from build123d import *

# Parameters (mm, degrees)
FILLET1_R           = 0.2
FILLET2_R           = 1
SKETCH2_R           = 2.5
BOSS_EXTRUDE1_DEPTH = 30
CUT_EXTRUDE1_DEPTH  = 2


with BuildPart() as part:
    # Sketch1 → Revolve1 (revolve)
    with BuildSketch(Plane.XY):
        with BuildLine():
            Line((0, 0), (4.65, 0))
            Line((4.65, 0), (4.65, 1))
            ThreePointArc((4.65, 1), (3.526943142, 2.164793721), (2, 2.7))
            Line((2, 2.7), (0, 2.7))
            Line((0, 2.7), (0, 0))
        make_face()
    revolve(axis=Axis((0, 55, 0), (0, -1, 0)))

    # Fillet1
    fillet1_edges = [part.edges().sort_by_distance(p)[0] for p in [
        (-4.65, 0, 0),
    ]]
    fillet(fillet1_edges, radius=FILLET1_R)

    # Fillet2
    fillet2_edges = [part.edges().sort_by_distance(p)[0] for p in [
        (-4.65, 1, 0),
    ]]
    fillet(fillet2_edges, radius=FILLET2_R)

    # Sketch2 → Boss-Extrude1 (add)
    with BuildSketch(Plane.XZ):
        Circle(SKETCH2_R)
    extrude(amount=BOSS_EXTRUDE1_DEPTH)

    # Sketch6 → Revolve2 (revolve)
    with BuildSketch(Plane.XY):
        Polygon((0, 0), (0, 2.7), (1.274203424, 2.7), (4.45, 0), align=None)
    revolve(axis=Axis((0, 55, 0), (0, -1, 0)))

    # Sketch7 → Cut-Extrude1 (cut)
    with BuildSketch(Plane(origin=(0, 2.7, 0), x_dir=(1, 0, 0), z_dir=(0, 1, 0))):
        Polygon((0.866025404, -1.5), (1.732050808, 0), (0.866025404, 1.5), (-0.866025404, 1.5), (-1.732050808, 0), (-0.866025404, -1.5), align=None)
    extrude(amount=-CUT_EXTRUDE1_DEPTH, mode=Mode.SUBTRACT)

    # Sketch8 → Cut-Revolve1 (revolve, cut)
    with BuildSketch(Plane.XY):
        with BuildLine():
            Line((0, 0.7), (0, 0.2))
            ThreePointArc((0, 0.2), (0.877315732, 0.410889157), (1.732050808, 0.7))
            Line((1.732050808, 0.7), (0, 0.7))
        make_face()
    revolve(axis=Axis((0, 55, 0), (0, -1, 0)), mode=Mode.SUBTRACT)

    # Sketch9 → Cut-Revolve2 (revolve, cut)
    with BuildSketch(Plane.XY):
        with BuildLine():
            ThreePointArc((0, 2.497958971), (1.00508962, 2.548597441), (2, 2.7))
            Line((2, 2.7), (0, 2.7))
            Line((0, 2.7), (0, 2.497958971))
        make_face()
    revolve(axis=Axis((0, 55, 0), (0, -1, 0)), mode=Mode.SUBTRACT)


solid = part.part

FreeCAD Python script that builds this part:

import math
import FreeCAD as App
import Part
import Sketcher
Q = App.Units.Quantity


def edges_at(feature, points):
    """Names of the edges that pass closest to the given points."""
    edges = feature.Shape.Edges
    near = lambda p: min(range(len(edges)), key=lambda i: edges[i].distToShape(Part.Vertex(*p))[0])
    return sorted({f"Edge{near(p) + 1}" for p in points})

doc = App.newDocument("Part")
body = doc.addObject("PartDesign::Body", "Body")

# Sketch on XY plane
sketch1 = body.newObject("Sketcher::SketchObject", "Sketch")
sketch1.AttachmentSupport = (doc.getObject("XY_Plane"), [""])
sketch1.MapMode = "FlatFace"
sketch1.addGeometry([
    Part.LineSegment(App.Vector(0, 0, 0), App.Vector(4.7, 0, 0)),  # 0
    Part.LineSegment(App.Vector(4.7, 0, 0), App.Vector(4.7, 1, 0)),  # 1
    Part.ArcOfCircle(Part.Circle(App.Vector(1.6, -0.8, 0), App.Vector(0, 0, 1), 3.5), math.radians(31), math.radians(84)),  # 2
    Part.LineSegment(App.Vector(2, 2.7, 0), App.Vector(0, 2.7, 0)),  # 3
    Part.LineSegment(App.Vector(0, 2.7, 0), App.Vector(0, 0, 0)),  # 4
], False)
sketch1.addConstraint([
    Sketcher.Constraint("Coincident", 0, 2, 1, 1),
    Sketcher.Constraint("Coincident", 1, 2, 2, 1),
    Sketcher.Constraint("Coincident", 2, 2, 3, 1),
    Sketcher.Constraint("Coincident", 3, 2, 4, 1),
    Sketcher.Constraint("Coincident", 4, 2, 0, 1),
    Sketcher.Constraint("Horizontal", 0),
    Sketcher.Constraint("Vertical", 1),
    Sketcher.Constraint("Horizontal", 3),
    Sketcher.Constraint("Vertical", 4),
    Sketcher.Constraint("Coincident", 4, 2, -1, 1),
    Sketcher.Constraint("Radius", 2, Q("3.5 mm")),
    Sketcher.Constraint("DistanceX", 3, 2, 3, 1, Q("2 mm")),
    Sketcher.Constraint("DistanceY", 1, 1, 1, 2, Q("1 mm")),
    Sketcher.Constraint("DistanceY", 4, 2, 4, 1, Q("2.7 mm")),
    Sketcher.Constraint("DistanceX", 0, 1, 0, 2, Q("4.65 mm")),
])
revolution = body.newObject("PartDesign::Revolution", "Revolution")
revolution.Profile = sketch1
revolution.ReferenceAxis = (sketch1, ["V_Axis"])
revolution.Angle = 360
doc.recompute()

fillet = body.newObject("PartDesign::Fillet", "Fillet")
fillet.Base = (revolution, edges_at(revolution, [(-4.65, 0, 0)]))
fillet.Radius = 0.2
doc.recompute()

fillet2 = body.newObject("PartDesign::Fillet", "Fillet001")
fillet2.Base = (fillet, edges_at(fillet, [(-4.65, 1, 0)]))
fillet2.Radius = 1

# Sketch on XZ plane
sketch2 = body.newObject("Sketcher::SketchObject", "Sketch001")
sketch2.AttachmentSupport = (doc.getObject("XZ_Plane"), [""])
sketch2.MapMode = "FlatFace"
sketch2.addGeometry(Part.Circle(App.Vector(0, 0, 0), App.Vector(0, 0, 1), 2.5), False)
sketch2.addConstraint([
    Sketcher.Constraint("Coincident", 0, 3, -1, 1),
    Sketcher.Constraint("Diameter", 0, Q("5 mm")),
])
pad1 = body.newObject("PartDesign::Pad", "Pad")
pad1.Profile = sketch2
pad1.Length = 30

# Sketch on XY plane
sketch3 = body.newObject("Sketcher::SketchObject", "Sketch002")
sketch3.AttachmentSupport = (doc.getObject("XY_Plane"), [""])
sketch3.MapMode = "FlatFace"
sketch3.addGeometry([
    Part.LineSegment(App.Vector(0, 2.7, 0), App.Vector(0, 0, 0)),
    Part.LineSegment(App.Vector(0, 0, 0), App.Vector(4.5, 0, 0)),
    Part.LineSegment(App.Vector(4.5, 0, 0), App.Vector(1.3, 2.7, 0)),
    Part.LineSegment(App.Vector(1.3, 2.7, 0), App.Vector(0, 2.7, 0)),
], False)
sketch3.addConstraint([
    Sketcher.Constraint("Coincident", 0, 2, 1, 1),
    Sketcher.Constraint("Coincident", 1, 2, 2, 1),
    Sketcher.Constraint("Coincident", 2, 2, 3, 1),
    Sketcher.Constraint("Coincident", 3, 2, 0, 1),
    Sketcher.Constraint("Vertical", 0),
    Sketcher.Constraint("Horizontal", 1),
    Sketcher.Constraint("Horizontal", 3),
    Sketcher.Constraint("Coincident", 0, 2, -1, 1),
    Sketcher.Constraint("DistanceY", 0, 2, 0, 1, Q("2.7 mm")),
    Sketcher.Constraint("DistanceX", 1, 1, 1, 2, Q("4.45 mm")),
    Sketcher.Constraint("DistanceX", 3, 2, 3, 1, Q("1.274203 mm")),
])
revolution2 = body.newObject("PartDesign::Revolution", "Revolution001")
revolution2.Profile = sketch3
revolution2.ReferenceAxis = (sketch3, ["V_Axis"])
revolution2.Angle = 360

# Sketch on XZ plane
sketch4 = body.newObject("Sketcher::SketchObject", "Sketch003")
sketch4.AttachmentSupport = (doc.getObject("XZ_Plane"), [""])
sketch4.MapMode = "FlatFace"
sketch4.AttachmentOffset = App.Placement(App.Vector(0, 0, -2.7), App.Rotation())
sketch4.addGeometry([
    Part.LineSegment(App.Vector(0.9, 1.5, 0), App.Vector(1.7, 0, 0)),  # 0
    Part.LineSegment(App.Vector(1.7, 0, 0), App.Vector(0.9, -1.5, 0)),  # 1
    Part.LineSegment(App.Vector(0.9, -1.5, 0), App.Vector(-0.9, -1.5, 0)),  # 2
    Part.LineSegment(App.Vector(-0.9, -1.5, 0), App.Vector(-1.7, 0, 0)),  # 3
    Part.LineSegment(App.Vector(-1.7, 0, 0), App.Vector(-0.9, 1.5, 0)),  # 4
    Part.LineSegment(App.Vector(-0.9, 1.5, 0), App.Vector(0.9, 1.5, 0)),  # 5
], False)
sketch4.addConstraint([
    Sketcher.Constraint("Coincident", 0, 2, 1, 1),
    Sketcher.Constraint("Coincident", 1, 2, 2, 1),
    Sketcher.Constraint("Coincident", 2, 2, 3, 1),
    Sketcher.Constraint("Coincident", 3, 2, 4, 1),
    Sketcher.Constraint("Coincident", 4, 2, 5, 1),
    Sketcher.Constraint("Coincident", 5, 2, 0, 1),
    Sketcher.Constraint("Horizontal", 2),
    Sketcher.Constraint("Horizontal", 5),
    Sketcher.Constraint("Symmetric", 0, 2, 3, 2, -1, 1),
    Sketcher.Constraint("Symmetric", 1, 2, 4, 2, -1, 1),
    Sketcher.Constraint("PointOnObject", 0, 2, -1),
    Sketcher.Constraint("Parallel", 0, 3),
    Sketcher.Constraint("Vertical", 2, 2, 4, 2),
    Sketcher.Constraint("Angle", 0, Q("-60 deg")),
    Sketcher.Constraint("DistanceY", 2, 2, 4, 2, Q("3 mm")),
    Sketcher.Constraint("DistanceX", 2, 2, 2, 1, Q("1.732051 mm")),
])
pocket1 = body.newObject("PartDesign::Pocket", "Pocket")
pocket1.Profile = sketch4
pocket1.Length = 2
pocket1.Reversed = True

# Sketch on XY plane
sketch5 = body.newObject("Sketcher::SketchObject", "Sketch004")
sketch5.AttachmentSupport = (doc.getObject("XY_Plane"), [""])
sketch5.MapMode = "FlatFace"
sketch5.addGeometry([
    Part.LineSegment(App.Vector(0, 0.7, 0), App.Vector(0, 0.2, 0)),
    Part.ArcOfCircle(Part.Circle(App.Vector(-1.9, 10.02, 0), App.Vector(0, 0, 1), 10), math.radians(-79.07), math.radians(-68.73)),
    Part.LineSegment(App.Vector(1.73, 0.7, 0), App.Vector(0, 0.7, 0)),
], False)
sketch5.addConstraint([
    Sketcher.Constraint("Coincident", 0, 2, 1, 1),
    Sketcher.Constraint("Coincident", 1, 2, 2, 1),
    Sketcher.Constraint("Coincident", 2, 2, 0, 1),
    Sketcher.Constraint("Vertical", 0),
    Sketcher.Constraint("Horizontal", 2),
    Sketcher.Constraint("PointOnObject", 0, 2, -2),
    Sketcher.Constraint("Radius", 1, Q("10 mm")),
    Sketcher.Constraint("DistanceY", 0, 2, 0, 1, Q("0.5 mm")),
    Sketcher.Constraint("DistanceY", -1, 1, 0, 2, Q("0.2 mm")),
    Sketcher.Constraint("DistanceX", 2, 2, 2, 1, Q("1.732051 mm")),
])
groove = body.newObject("PartDesign::Groove", "Groove")
groove.Profile = sketch5
groove.ReferenceAxis = (sketch5, ["V_Axis"])
groove.Angle = 360

# Sketch on XY plane
sketch6 = body.newObject("Sketcher::SketchObject", "Sketch005")
sketch6.AttachmentSupport = (doc.getObject("XY_Plane"), [""])
sketch6.MapMode = "FlatFace"
sketch6.addGeometry([
    Part.ArcOfCircle(Part.Circle(App.Vector(0, 12.5, 0), App.Vector(0, 0, 1), 10), math.radians(-90), math.radians(-78.46)),
    Part.LineSegment(App.Vector(2, 2.7, 0), App.Vector(0, 2.7, 0)),
    Part.LineSegment(App.Vector(0, 2.7, 0), App.Vector(0, 2.5, 0)),
], False)
sketch6.addConstraint([
    Sketcher.Constraint("Coincident", 0, 2, 1, 1),
    Sketcher.Constraint("Coincident", 1, 2, 2, 1),
    Sketcher.Constraint("Coincident", 2, 2, 0, 1),
    Sketcher.Constraint("Horizontal", 1),
    Sketcher.Constraint("Vertical", 2),
    Sketcher.Constraint("PointOnObject", 0, 3, -2),
    Sketcher.Constraint("PointOnObject", 1, 2, -2),
    Sketcher.Constraint("Radius", 0, Q("10 mm")),
    Sketcher.Constraint("DistanceX", 1, 2, 1, 1, Q("2 mm")),
    Sketcher.Constraint("DistanceY", -1, 1, 0, 2, Q("2.7 mm")),
])
groove2 = body.newObject("PartDesign::Groove", "Groove001")
groove2.Profile = sketch6
groove2.ReferenceAxis = (sketch6, ["V_Axis"])
groove2.Angle = 360

doc.recompute()
